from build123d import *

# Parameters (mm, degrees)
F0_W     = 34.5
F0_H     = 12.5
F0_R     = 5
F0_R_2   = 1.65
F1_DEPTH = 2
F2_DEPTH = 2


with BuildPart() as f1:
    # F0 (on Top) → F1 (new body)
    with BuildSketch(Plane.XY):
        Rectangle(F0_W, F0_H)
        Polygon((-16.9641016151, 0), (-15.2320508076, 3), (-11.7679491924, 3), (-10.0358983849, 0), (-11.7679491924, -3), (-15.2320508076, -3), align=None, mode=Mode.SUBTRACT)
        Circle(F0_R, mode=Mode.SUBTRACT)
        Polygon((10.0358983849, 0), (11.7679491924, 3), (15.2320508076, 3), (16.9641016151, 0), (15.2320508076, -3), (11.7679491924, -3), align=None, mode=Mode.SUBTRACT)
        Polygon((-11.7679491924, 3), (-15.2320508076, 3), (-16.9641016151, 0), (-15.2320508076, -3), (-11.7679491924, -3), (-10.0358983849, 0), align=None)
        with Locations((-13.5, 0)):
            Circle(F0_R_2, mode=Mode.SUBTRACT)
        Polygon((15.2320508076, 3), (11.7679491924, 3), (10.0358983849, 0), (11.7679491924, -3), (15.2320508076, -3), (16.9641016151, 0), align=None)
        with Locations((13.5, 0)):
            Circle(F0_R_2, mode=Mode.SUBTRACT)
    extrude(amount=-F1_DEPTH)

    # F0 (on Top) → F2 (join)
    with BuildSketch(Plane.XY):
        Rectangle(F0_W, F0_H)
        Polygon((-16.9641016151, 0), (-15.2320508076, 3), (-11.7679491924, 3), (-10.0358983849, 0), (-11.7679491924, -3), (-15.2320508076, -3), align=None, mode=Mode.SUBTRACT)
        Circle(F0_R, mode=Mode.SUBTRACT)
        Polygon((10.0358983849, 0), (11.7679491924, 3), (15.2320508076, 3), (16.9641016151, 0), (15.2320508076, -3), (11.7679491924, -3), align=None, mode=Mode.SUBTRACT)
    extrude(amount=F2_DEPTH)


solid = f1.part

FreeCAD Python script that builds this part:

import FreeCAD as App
import Part
import Sketcher
from FreeCAD import Vector
Q = App.Units.Quantity


def add_polygon(sketch, points):
    """Adds a closed chain of lines whose ends are joined by coincident constraints."""
    first, n = sketch.GeometryCount, len(points)
    for a, b in zip(points, points[1:] + points[:1]):
        sketch.addGeometry(Part.LineSegment(App.Vector(*a, 0), App.Vector(*b, 0)), False)
    for i in range(n):
        sketch.addConstraint(Sketcher.Constraint("Coincident", first + i, 2, first + (i + 1) % n, 1))

doc = App.newDocument("Part")
body = doc.addObject("PartDesign::Body", "Body")

# Sketch on XY plane
sketch1 = body.newObject("Sketcher::SketchObject", "Sketch")
sketch1.AttachmentSupport = (doc.getObject("XY_Plane"), [""])
sketch1.MapMode = "FlatFace"
add_polygon(sketch1, [(-17.2, 6.2), (-17.2, -6.2), (17.2, -6.2), (17.2, 6.2)])  # lines 0-3
sketch1.addGeometry(Part.Circle(Vector(-13.5, 0, 0), Vector(0, 0, 1), 1.6), False)  # 4
sketch1.addGeometry(Part.Circle(Vector(0, 0, 0), Vector(0, 0, 1), 5), False)  # 5
sketch1.addGeometry(Part.Circle(Vector(13.5, 0, 0), Vector(0, 0, 1), 1.6), False)  # 6
sketch1.addConstraint(Sketcher.Constraint("Vertical", 0))
sketch1.addConstraint(Sketcher.Constraint("Horizontal", 1))
sketch1.addConstraint(Sketcher.Constraint("Vertical", 2))
sketch1.addConstraint(Sketcher.Constraint("Horizontal", 3))
sketch1.addConstraint(Sketcher.Constraint("Coincident", 5, 3, -1, 1))
sketch1.addConstraint(Sketcher.Constraint("Equal", 4, 6))
sketch1.addConstraint(Sketcher.Constraint("Symmetric", 4, 3, 6, 3, -1, 1))
sketch1.addConstraint(Sketcher.Constraint("Symmetric", 0, 2, 2, 2, -1, 1))
sketch1.addConstraint(Sketcher.Constraint("PointOnObject", 4, 3, -1))
sketch1.addConstraint(Sketcher.Constraint("Diameter", 5, 10.0))
sketch1.addConstraint(Sketcher.Constraint("Diameter", 4, 3.3))
sketch1.addConstraint(Sketcher.Constraint("DistanceX", 1, 1, 1, 2, 34.5))
sketch1.addConstraint(Sketcher.Constraint("DistanceY", 0, 2, 0, 1, 12.5))
sketch1.addConstraint(Sketcher.Constraint("DistanceX", 4, 3, 6, 3, 27.0))
pad1 = body.newObject("PartDesign::Pad", "Pad")
pad1.Profile = sketch1
pad1.Length = 2
pad1.Reversed = True

# Sketch on XY plane
sketch2 = body.newObject("Sketcher::SketchObject", "Sketch001")
sketch2.AttachmentSupport = (doc.getObject("XY_Plane"), [""])
sketch2.MapMode = "FlatFace"
add_polygon(sketch2, [(-17.2, 6.2), (-17.2, -6.2), (17.2, -6.2), (17.2, 6.2)])  # lines 0-3
add_polygon(sketch2, [(-15.2, -3), (-17, 0), (-15.2, 3), (-11.8, 3), (-10, 0), (-11.8, -3)])  # lines 4-9
sketch2.addGeometry(Part.Circle(Vector(0, 0, 0), Vector(0, 0, 1), 5), False)  # 10
add_polygon(sketch2, [(11.8, -3), (10, 0), (11.8, 3), (15.2, 3), (17, 0), (15.2, -3)])  # lines 11-16
sketch2.addConstraint(Sketcher.Constraint("Vertical", 0))
sketch2.addConstraint(Sketcher.Constraint("Horizontal", 1))
sketch2.addConstraint(Sketcher.Constraint("Vertical", 2))
sketch2.addConstraint(Sketcher.Constraint("Horizontal", 3))
sketch2.addConstraint(Sketcher.Constraint("Horizontal", 6))
sketch2.addConstraint(Sketcher.Constraint("Horizontal", 9))
sketch2.addConstraint(Sketcher.Constraint("Horizontal", 13))
sketch2.addConstraint(Sketcher.Constraint("Horizontal", 16))
sketch2.addConstraint(Sketcher.Constraint("Coincident", 10, 3, -1, 1))
sketch2.addConstraint(Sketcher.Constraint("Symmetric", 0, 2, 2, 2, -1, 1))
sketch2.addConstraint(Sketcher.Constraint("Symmetric", 7, 2, 11, 2, -1, 1))
sketch2.addConstraint(Sketcher.Constraint("Symmetric", 8, 2, 12, 2, -1, 1))
sketch2.addConstraint(Sketcher.Constraint("Symmetric", 4, 2, 14, 2, -1, 1))
sketch2.addConstraint(Sketcher.Constraint("Symmetric", 5, 2, 15, 2, -1, 1))
sketch2.addConstraint(Sketcher.Constraint("Symmetric", 6, 2, 12, 2, -2))
sketch2.addConstraint(Sketcher.Constraint("PointOnObject", 4, 2, -1))
sketch2.addConstraint(Sketcher.Constraint("PointOnObject", 7, 2, -1))
sketch2.addConstraint(Sketcher.Constraint("Parallel", 4, 7))
sketch2.addConstraint(Sketcher.Constraint("Parallel", 5, 8))
sketch2.addConstraint(Sketcher.Constraint("Parallel", 7, 11))
sketch2.addConstraint(Sketcher.Constraint("Parallel", 11, 14))
sketch2.addConstraint(Sketcher.Constraint("Diameter", 10, 10.0))
sketch2.addConstraint(Sketcher.Constraint("Angle", 4, Q("120 deg")))
sketch2.addConstraint(Sketcher.Constraint("DistanceX", 1, 1, 1, 2, 34.5))
sketch2.addConstraint(Sketcher.Constraint("DistanceY", 0, 2, 0, 1, 12.5))
sketch2.addConstraint(Sketcher.Constraint("DistanceY", -1, 1, 5, 2, 3.0))
sketch2.addConstraint(Sketcher.Constraint("DistanceX", 6, 1, 6, 2, 3.464102))
sketch2.addConstraint(Sketcher.Constraint("DistanceX", 4, 2, -1, 1, 16.964102))
pad2 = body.newObject("PartDesign::Pad", "Pad001")
pad2.Profile = sketch2
pad2.Length = 2

doc.recompute()
